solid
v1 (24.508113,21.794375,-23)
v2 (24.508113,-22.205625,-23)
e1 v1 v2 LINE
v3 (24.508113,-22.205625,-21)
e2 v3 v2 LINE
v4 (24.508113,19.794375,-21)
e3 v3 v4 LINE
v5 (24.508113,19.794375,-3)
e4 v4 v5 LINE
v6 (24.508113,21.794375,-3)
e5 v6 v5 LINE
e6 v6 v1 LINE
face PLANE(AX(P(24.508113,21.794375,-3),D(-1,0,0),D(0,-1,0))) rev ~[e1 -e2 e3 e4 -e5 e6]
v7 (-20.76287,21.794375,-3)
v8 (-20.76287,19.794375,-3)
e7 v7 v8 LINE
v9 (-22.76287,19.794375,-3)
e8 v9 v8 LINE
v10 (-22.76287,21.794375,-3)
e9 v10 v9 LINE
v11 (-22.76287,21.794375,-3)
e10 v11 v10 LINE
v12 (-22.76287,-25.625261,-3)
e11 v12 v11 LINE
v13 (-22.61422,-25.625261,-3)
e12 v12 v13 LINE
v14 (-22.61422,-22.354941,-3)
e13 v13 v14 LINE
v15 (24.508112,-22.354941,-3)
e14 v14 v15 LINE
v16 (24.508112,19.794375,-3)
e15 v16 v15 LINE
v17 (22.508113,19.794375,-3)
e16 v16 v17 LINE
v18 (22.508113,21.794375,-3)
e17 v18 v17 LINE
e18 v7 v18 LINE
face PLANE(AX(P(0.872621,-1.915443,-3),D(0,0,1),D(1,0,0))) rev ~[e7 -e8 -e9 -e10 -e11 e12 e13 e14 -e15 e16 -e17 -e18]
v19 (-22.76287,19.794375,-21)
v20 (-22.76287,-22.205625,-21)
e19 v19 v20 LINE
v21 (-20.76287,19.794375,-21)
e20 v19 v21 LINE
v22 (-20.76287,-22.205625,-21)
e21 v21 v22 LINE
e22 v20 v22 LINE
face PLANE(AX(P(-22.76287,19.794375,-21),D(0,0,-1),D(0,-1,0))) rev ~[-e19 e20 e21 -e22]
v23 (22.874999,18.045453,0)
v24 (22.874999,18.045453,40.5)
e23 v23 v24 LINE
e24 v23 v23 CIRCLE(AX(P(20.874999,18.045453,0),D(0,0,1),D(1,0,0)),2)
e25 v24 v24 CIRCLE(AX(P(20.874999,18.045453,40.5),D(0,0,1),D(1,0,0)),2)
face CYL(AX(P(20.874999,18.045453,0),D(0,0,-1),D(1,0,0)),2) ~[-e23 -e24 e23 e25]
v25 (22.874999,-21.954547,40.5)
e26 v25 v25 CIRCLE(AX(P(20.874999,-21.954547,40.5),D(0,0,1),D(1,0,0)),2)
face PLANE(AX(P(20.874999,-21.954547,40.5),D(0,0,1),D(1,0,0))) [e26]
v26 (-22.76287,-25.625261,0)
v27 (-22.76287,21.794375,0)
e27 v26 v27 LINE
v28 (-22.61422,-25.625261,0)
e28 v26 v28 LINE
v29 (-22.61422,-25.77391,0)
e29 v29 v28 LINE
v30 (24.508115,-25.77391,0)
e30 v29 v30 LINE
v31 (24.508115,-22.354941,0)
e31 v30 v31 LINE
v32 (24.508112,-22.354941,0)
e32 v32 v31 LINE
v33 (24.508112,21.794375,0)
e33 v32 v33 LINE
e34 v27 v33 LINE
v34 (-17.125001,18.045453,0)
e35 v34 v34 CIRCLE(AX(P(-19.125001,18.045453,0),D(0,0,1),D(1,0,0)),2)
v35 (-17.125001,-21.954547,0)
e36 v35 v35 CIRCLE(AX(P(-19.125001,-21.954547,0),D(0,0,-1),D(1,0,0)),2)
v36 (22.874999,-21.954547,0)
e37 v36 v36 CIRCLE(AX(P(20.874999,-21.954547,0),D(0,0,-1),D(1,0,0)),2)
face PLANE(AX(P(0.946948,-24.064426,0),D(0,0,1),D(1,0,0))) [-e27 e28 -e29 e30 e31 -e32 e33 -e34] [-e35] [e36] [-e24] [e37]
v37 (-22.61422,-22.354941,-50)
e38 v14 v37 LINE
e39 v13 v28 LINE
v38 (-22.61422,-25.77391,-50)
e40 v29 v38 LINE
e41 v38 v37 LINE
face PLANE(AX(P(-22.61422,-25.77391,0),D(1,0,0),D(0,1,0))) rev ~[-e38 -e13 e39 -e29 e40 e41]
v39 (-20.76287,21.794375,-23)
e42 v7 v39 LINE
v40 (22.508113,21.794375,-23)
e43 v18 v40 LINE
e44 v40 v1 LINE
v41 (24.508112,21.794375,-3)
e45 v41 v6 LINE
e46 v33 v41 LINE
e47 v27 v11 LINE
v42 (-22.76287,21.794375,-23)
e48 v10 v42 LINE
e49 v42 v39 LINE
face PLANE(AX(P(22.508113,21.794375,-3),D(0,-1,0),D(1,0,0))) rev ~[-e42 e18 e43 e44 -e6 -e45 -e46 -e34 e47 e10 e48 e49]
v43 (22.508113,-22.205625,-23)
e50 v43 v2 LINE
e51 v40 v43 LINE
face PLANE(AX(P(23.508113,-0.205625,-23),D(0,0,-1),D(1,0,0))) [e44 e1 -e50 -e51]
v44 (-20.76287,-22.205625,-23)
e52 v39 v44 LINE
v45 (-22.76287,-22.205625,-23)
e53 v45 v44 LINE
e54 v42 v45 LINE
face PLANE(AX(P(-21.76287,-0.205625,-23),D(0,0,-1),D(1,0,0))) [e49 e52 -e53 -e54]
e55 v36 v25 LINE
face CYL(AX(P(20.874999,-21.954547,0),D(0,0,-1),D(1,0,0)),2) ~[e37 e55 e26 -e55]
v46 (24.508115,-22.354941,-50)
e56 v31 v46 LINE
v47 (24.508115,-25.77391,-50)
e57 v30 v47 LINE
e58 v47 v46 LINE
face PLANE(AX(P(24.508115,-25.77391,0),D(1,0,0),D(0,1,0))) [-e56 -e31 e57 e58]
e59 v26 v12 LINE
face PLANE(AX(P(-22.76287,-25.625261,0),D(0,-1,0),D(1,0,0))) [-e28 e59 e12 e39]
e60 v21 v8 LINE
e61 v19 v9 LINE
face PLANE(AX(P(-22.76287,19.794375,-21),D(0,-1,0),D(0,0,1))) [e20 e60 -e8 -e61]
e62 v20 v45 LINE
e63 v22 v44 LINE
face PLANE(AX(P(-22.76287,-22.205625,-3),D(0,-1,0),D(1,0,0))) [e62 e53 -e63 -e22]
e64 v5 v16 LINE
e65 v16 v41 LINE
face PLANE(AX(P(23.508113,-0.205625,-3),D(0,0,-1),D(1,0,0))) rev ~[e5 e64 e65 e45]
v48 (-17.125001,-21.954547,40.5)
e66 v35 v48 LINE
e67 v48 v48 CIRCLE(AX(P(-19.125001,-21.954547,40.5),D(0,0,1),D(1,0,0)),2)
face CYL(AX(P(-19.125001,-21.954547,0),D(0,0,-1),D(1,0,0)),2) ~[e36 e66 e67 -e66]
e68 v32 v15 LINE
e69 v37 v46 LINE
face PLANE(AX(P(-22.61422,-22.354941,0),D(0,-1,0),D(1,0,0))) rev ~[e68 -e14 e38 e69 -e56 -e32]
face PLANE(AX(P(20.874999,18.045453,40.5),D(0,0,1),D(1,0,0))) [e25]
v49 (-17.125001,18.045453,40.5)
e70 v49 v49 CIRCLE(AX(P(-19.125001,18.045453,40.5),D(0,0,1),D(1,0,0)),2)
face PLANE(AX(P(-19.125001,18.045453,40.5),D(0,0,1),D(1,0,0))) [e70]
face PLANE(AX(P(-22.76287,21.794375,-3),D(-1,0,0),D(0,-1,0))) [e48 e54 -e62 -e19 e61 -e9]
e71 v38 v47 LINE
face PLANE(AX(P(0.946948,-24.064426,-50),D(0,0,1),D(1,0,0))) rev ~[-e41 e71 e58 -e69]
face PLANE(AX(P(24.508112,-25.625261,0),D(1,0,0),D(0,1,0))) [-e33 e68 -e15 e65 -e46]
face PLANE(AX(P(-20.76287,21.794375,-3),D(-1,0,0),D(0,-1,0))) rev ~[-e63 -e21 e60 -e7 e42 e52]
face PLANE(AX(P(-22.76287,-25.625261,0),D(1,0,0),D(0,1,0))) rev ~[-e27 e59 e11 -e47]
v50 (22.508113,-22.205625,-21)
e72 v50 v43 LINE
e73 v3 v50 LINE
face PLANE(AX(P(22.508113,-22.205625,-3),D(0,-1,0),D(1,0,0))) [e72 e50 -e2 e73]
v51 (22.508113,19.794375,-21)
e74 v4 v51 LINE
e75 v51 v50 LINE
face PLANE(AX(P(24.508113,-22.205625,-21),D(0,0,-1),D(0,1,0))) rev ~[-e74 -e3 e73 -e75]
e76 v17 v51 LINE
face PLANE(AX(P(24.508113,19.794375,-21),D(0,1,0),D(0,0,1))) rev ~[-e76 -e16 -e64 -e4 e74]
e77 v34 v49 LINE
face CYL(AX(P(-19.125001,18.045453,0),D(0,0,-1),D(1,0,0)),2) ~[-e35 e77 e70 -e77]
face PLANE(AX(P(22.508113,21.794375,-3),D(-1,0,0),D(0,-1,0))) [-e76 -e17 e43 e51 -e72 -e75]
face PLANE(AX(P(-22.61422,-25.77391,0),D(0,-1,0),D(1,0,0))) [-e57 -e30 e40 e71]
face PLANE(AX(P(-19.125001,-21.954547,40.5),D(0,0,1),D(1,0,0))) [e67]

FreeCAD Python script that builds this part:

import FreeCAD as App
import Part
import Sketcher
Q = App.Units.Quantity

doc = App.newDocument("Part")
body = doc.addObject("PartDesign::Body", "Body")
body.AllowCompound = True

# Sketch on XY plane
sketch1 = body.newObject("Sketcher::SketchObject", "Sketch")
sketch1.AttachmentSupport = (doc.getObject("XY_Plane"), [""])
sketch1.MapMode = "FlatFace"
sketch1.addGeometry(Part.Circle(App.Vector(-19.1, -22, 0), App.Vector(0, 0, 1), 2), False)
sketch1.addGeometry(Part.Circle(App.Vector(20.9, 18, 0), App.Vector(0, 0, 1), 2), False)
sketch1.addGeometry(Part.Circle(App.Vector(20.9, -22, 0), App.Vector(0, 0, 1), 2), False)
sketch1.addGeometry(Part.Circle(App.Vector(-19.1, 18, 0), App.Vector(0, 0, 1), 2), False)
sketch1.addConstraint(Sketcher.Constraint("Equal", 0, 1))
sketch1.addConstraint(Sketcher.Constraint("Equal", 1, 2))
sketch1.addConstraint(Sketcher.Constraint("Equal", 2, 3))
sketch1.addConstraint(Sketcher.Constraint("Horizontal", 0, 3, 2, 3))
sketch1.addConstraint(Sketcher.Constraint("Horizontal", 1, 3, 3, 3))
sketch1.addConstraint(Sketcher.Constraint("Vertical", 1, 3, 2, 3))
sketch1.addConstraint(Sketcher.Constraint("Vertical", 0, 3, 3, 3))
sketch1.addConstraint(Sketcher.Constraint("Diameter", 0, Q("4 mm")))
sketch1.addConstraint(Sketcher.Constraint("DistanceX", 0, 3, 1, 3, Q("40 mm")))
sketch1.addConstraint(Sketcher.Constraint("DistanceY", 0, 3, 1, 3, Q("40 mm")))
sketch1.addConstraint(Sketcher.Constraint("DistanceX", 0, 3, -1, 1, Q("19.125001 mm")))
sketch1.addConstraint(Sketcher.Constraint("DistanceY", 0, 3, -1, 1, Q("21.954547 mm")))
pad1 = body.newObject("PartDesign::Pad", "Pad")
pad1.Profile = sketch1
pad1.Length = 40.5

# Sketch on XY plane
sketch2 = body.newObject("Sketcher::SketchObject", "Sketch001")
sketch2.AttachmentSupport = (doc.getObject("XY_Plane"), [""])
sketch2.MapMode = "FlatFace"
sketch2.addGeometry(Part.LineSegment(App.Vector(-23, 22, 0), App.Vector(-23, -26, 0)), False)
sketch2.addGeometry(Part.LineSegment(App.Vector(-23, -26, 0), App.Vector(25, -26, 0)), False)
sketch2.addGeometry(Part.LineSegment(App.Vector(25, -26, 0), App.Vector(25, 22, 0)), False)
sketch2.addGeometry(Part.LineSegment(App.Vector(25, 22, 0), App.Vector(-23, 22, 0)), False)
sketch2.addConstraint(Sketcher.Constraint("Coincident", 0, 2, 1, 1))
sketch2.addConstraint(Sketcher.Constraint("Coincident", 1, 2, 2, 1))
sketch2.addConstraint(Sketcher.Constraint("Coincident", 2, 2, 3, 1))
sketch2.addConstraint(Sketcher.Constraint("Coincident", 3, 2, 0, 1))
sketch2.addConstraint(Sketcher.Constraint("Vertical", 0))
sketch2.addConstraint(Sketcher.Constraint("Horizontal", 1))
sketch2.addConstraint(Sketcher.Constraint("Vertical", 2))
sketch2.addConstraint(Sketcher.Constraint("Horizontal", 3))
sketch2.addConstraint(Sketcher.Constraint("DistanceX", 1, 1, 1, 2, Q("47.270983 mm")))
sketch2.addConstraint(Sketcher.Constraint("DistanceY", 0, 2, 0, 1, Q("47.419636 mm")))
sketch2.addConstraint(Sketcher.Constraint("DistanceX", 0, 2, -1, 1, Q("22.76287 mm")))
sketch2.addConstraint(Sketcher.Constraint("DistanceY", 0, 2, -1, 1, Q("25.625261 mm")))
pad2 = body.newObject("PartDesign::Pad", "Pad001")
pad2.Profile = sketch2
pad2.Length = 3
pad2.Reversed = True

# Sketch on XY plane
sketch3 = body.newObject("Sketcher::SketchObject", "Sketch002")
sketch3.AttachmentSupport = (doc.getObject("XY_Plane"), [""])
sketch3.MapMode = "FlatFace"
sketch3.addGeometry(Part.LineSegment(App.Vector(-22.6, -22.4, 0), App.Vector(-22.6, -25.8, 0)), False)
sketch3.addGeometry(Part.LineSegment(App.Vector(-22.6, -25.8, 0), App.Vector(24.5, -25.8, 0)), False)
sketch3.addGeometry(Part.LineSegment(App.Vector(24.5, -25.8, 0), App.Vector(24.5, -22.4, 0)), False)
sketch3.addGeometry(Part.LineSegment(App.Vector(24.5, -22.4, 0), App.Vector(-22.6, -22.4, 0)), False)
sketch3.addConstraint(Sketcher.Constraint("Coincident", 0, 2, 1, 1))
sketch3.addConstraint(Sketcher.Constraint("Coincident", 1, 2, 2, 1))
sketch3.addConstraint(Sketcher.Constraint("Coincident", 2, 2, 3, 1))
sketch3.addConstraint(Sketcher.Constraint("Coincident", 3, 2, 0, 1))
sketch3.addConstraint(Sketcher.Constraint("Vertical", 0))
sketch3.addConstraint(Sketcher.Constraint("Horizontal", 1))
sketch3.addConstraint(Sketcher.Constraint("Vertical", 2))
sketch3.addConstraint(Sketcher.Constraint("Horizontal", 3))
sketch3.addConstraint(Sketcher.Constraint("DistanceY", 0, 2, 0, 1, Q("3.418969 mm")))
sketch3.addConstraint(Sketcher.Constraint("DistanceX", 1, 1, 1, 2, Q("47.122335 mm")))
sketch3.addConstraint(Sketcher.Constraint("DistanceX", 0, 2, -1, 1, Q("22.61422 mm")))
sketch3.addConstraint(Sketcher.Constraint("DistanceY", 0, 2, -1, 1, Q("25.77391 mm")))
pad3 = body.newObject("PartDesign::Pad", "Pad002")
pad3.Profile = sketch3
pad3.Length = 50
pad3.Reversed = True

# Sketch on XY plane
sketch4 = body.newObject("Sketcher::SketchObject", "Sketch003")
sketch4.AttachmentSupport = (doc.getObject("XY_Plane"), [""])
sketch4.MapMode = "FlatFace"
sketch4.AttachmentOffset = App.Placement(App.Vector(0, 0, -3), App.Rotation())
sketch4.addGeometry(Part.LineSegment(App.Vector(22.5, -22.2, 0), App.Vector(22.5, 21.8, 0)), False)
sketch4.addGeometry(Part.LineSegment(App.Vector(22.5, 21.8, 0), App.Vector(24.5, 21.8, 0)), False)
sketch4.addGeometry(Part.LineSegment(App.Vector(24.5, 21.8, 0), App.Vector(24.5, -22.2, 0)), False)
sketch4.addGeometry(Part.LineSegment(App.Vector(24.5, -22.2, 0), App.Vector(22.5, -22.2, 0)), False)
sketch4.addConstraint(Sketcher.Constraint("Coincident", 0, 2, 1, 1))
sketch4.addConstraint(Sketcher.Constraint("Coincident", 1, 2, 2, 1))
sketch4.addConstraint(Sketcher.Constraint("Coincident", 2, 2, 3, 1))
sketch4.addConstraint(Sketcher.Constraint("Coincident", 3, 2, 0, 1))
sketch4.addConstraint(Sketcher.Constraint("Vertical", 0))
sketch4.addConstraint(Sketcher.Constraint("Horizontal", 1))
sketch4.addConstraint(Sketcher.Constraint("Vertical", 2))
sketch4.addConstraint(Sketcher.Constraint("Horizontal", 3))
sketch4.addConstraint(Sketcher.Constraint("DistanceX", 1, 1, 1, 2, Q("2 mm")))
sketch4.addConstraint(Sketcher.Constraint("DistanceY", 0, 1, 0, 2, Q("44 mm")))
sketch4.addConstraint(Sketcher.Constraint("DistanceX", -1, 1, 0, 2, Q("22.508113 mm")))
sketch4.addConstraint(Sketcher.Constraint("DistanceY", -1, 1, 0, 2, Q("21.794375 mm")))
pad4 = body.newObject("PartDesign::Pad", "Pad003")
pad4.Profile = sketch4
pad4.Length = 20
pad4.Reversed = True

# Sketch on XY plane
sketch5 = body.newObject("Sketcher::SketchObject", "Sketch004")
sketch5.AttachmentSupport = (doc.getObject("XY_Plane"), [""])
sketch5.MapMode = "FlatFace"
sketch5.AttachmentOffset = App.Placement(App.Vector(0, 0, -3), App.Rotation())
sketch5.addGeometry(Part.LineSegment(App.Vector(-22.8, -22.2, 0), App.Vector(-22.8, 21.8, 0)), False)
sketch5.addGeometry(Part.LineSegment(App.Vector(-22.8, 21.8, 0), App.Vector(-20.8, 21.8, 0)), False)
sketch5.addGeometry(Part.LineSegment(App.Vector(-20.8, 21.8, 0), App.Vector(-20.8, -22.2, 0)), False)
sketch5.addGeometry(Part.LineSegment(App.Vector(-20.8, -22.2, 0), App.Vector(-22.8, -22.2, 0)), False)
sketch5.addConstraint(Sketcher.Constraint("Coincident", 0, 2, 1, 1))
sketch5.addConstraint(Sketcher.Constraint("Coincident", 1, 2, 2, 1))
sketch5.addConstraint(Sketcher.Constraint("Coincident", 2, 2, 3, 1))
sketch5.addConstraint(Sketcher.Constraint("Coincident", 3, 2, 0, 1))
sketch5.addConstraint(Sketcher.Constraint("Vertical", 0))
sketch5.addConstraint(Sketcher.Constraint("Horizontal", 1))
sketch5.addConstraint(Sketcher.Constraint("Vertical", 2))
sketch5.addConstraint(Sketcher.Constraint("Horizontal", 3))
sketch5.addConstraint(Sketcher.Constraint("DistanceX", 1, 1, 1, 2, Q("2 mm")))
sketch5.addConstraint(Sketcher.Constraint("DistanceY", 0, 1, 0, 2, Q("44 mm")))
sketch5.addConstraint(Sketcher.Constraint("DistanceX", 0, 2, -1, 1, Q("22.76287 mm")))
sketch5.addConstraint(Sketcher.Constraint("DistanceY", -1, 1, 0, 2, Q("21.794375 mm")))
pad5 = body.newObject("PartDesign::Pad", "Pad004")
pad5.Profile = sketch5
pad5.Length = 20
pad5.Reversed = True

# Sketch on YZ plane
sketch6 = body.newObject("Sketcher::SketchObject", "Sketch005")
sketch6.AttachmentSupport = (doc.getObject("YZ_Plane"), [""])
sketch6.MapMode = "FlatFace"
sketch6.AttachmentOffset = App.Placement(App.Vector(0, 0, 24.508113), App.Rotation())
sketch6.addGeometry(Part.LineSegment(App.Vector(-22, -3, 0), App.Vector(-22, -21, 0)), False)
sketch6.addGeometry(Part.LineSegment(App.Vector(-22, -21, 0), App.Vector(20, -21, 0)), False)
sketch6.addGeometry(Part.LineSegment(App.Vector(20, -21, 0), App.Vector(20, -3, 0)), False)
sketch6.addGeometry(Part.LineSegment(App.Vector(20, -3, 0), App.Vector(-22, -3, 0)), False)
sketch6.addConstraint(Sketcher.Constraint("Coincident", 0, 2, 1, 1))
sketch6.addConstraint(Sketcher.Constraint("Coincident", 1, 2, 2, 1))
sketch6.addConstraint(Sketcher.Constraint("Coincident", 2, 2, 3, 1))
sketch6.addConstraint(Sketcher.Constraint("Coincident", 3, 2, 0, 1))
sketch6.addConstraint(Sketcher.Constraint("Vertical", 0))
sketch6.addConstraint(Sketcher.Constraint("Horizontal", 1))
sketch6.addConstraint(Sketcher.Constraint("Vertical", 2))
sketch6.addConstraint(Sketcher.Constraint("Horizontal", 3))
sketch6.addConstraint(Sketcher.Constraint("DistanceX", 1, 1, 1, 2, Q("42 mm")))
sketch6.addConstraint(Sketcher.Constraint("DistanceY", 0, 2, 0, 1, Q("18 mm")))
sketch6.addConstraint(Sketcher.Constraint("DistanceY", 0, 2, -1, 1, Q("21 mm")))
sketch6.addConstraint(Sketcher.Constraint("DistanceX", 0, 2, -1, 1, Q("22.205625 mm")))
pocket1 = body.newObject("PartDesign::Pocket", "Pocket")
pocket1.Profile = sketch6
pocket1.Length = 25

# Sketch on YZ plane
sketch7 = body.newObject("Sketcher::SketchObject", "Sketch006")
sketch7.AttachmentSupport = (doc.getObject("YZ_Plane"), [""])
sketch7.MapMode = "FlatFace"
sketch7.AttachmentOffset = App.Placement(App.Vector(0, 0, -22.76287), App.Rotation())
sketch7.addGeometry(Part.LineSegment(App.Vector(20, -3, 0), App.Vector(20, -21, 0)), False)
sketch7.addGeometry(Part.LineSegment(App.Vector(20, -21, 0), App.Vector(-22, -21, 0)), False)
sketch7.addGeometry(Part.LineSegment(App.Vector(-22, -21, 0), App.Vector(-22, -3, 0)), False)
sketch7.addGeometry(Part.LineSegment(App.Vector(-22, -3, 0), App.Vector(20, -3, 0)), False)
sketch7.addConstraint(Sketcher.Constraint("Coincident", 0, 2, 1, 1))
sketch7.addConstraint(Sketcher.Constraint("Coincident", 1, 2, 2, 1))
sketch7.addConstraint(Sketcher.Constraint("Coincident", 2, 2, 3, 1))
sketch7.addConstraint(Sketcher.Constraint("Coincident", 3, 2, 0, 1))
sketch7.addConstraint(Sketcher.Constraint("Vertical", 0))
sketch7.addConstraint(Sketcher.Constraint("Horizontal", 1))
sketch7.addConstraint(Sketcher.Constraint("Vertical", 2))
sketch7.addConstraint(Sketcher.Constraint("Horizontal", 3))
sketch7.addConstraint(Sketcher.Constraint("DistanceX", 1, 2, 1, 1, Q("42 mm")))
sketch7.addConstraint(Sketcher.Constraint("DistanceY", 0, 2, 0, 1, Q("18 mm")))
sketch7.addConstraint(Sketcher.Constraint("DistanceY", 0, 2, -1, 1, Q("21 mm")))
sketch7.addConstraint(Sketcher.Constraint("DistanceX", -1, 1, 0, 2, Q("19.794375 mm")))
pocket2 = body.newObject("PartDesign::Pocket", "Pocket001")
pocket2.Profile = sketch7
pocket2.Length = 25
pocket2.Reversed = True

doc.recompute()
